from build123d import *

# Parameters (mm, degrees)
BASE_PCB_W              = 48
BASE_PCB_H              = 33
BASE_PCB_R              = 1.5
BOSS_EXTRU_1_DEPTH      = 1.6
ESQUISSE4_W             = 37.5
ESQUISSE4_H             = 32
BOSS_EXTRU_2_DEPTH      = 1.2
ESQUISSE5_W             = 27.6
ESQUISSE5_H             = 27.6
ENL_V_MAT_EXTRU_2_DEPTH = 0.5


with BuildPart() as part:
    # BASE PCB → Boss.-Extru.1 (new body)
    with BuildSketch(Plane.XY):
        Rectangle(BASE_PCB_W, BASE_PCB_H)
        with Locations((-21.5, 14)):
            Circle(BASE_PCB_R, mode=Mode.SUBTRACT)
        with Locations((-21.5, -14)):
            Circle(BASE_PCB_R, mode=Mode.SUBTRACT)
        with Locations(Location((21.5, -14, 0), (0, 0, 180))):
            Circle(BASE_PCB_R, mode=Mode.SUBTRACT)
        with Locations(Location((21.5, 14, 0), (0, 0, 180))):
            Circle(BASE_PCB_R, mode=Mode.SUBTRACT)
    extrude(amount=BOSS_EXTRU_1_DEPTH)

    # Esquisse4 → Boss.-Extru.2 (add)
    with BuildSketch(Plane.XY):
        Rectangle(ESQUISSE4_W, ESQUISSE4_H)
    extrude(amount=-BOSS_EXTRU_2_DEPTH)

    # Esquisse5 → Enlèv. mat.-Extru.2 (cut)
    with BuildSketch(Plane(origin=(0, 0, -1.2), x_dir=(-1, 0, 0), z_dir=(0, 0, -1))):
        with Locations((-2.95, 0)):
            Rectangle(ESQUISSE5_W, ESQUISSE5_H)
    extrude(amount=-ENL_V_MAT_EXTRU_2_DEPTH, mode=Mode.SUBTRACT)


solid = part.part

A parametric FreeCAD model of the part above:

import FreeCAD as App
import Part
import Sketcher
from FreeCAD import Vector
Q = App.Units.Quantity


def add_polygon(sketch, points):
    """Adds a closed chain of lines whose ends are joined by coincident constraints."""
    first, n = sketch.GeometryCount, len(points)
    for a, b in zip(points, points[1:] + points[:1]):
        sketch.addGeometry(Part.LineSegment(App.Vector(*a, 0), App.Vector(*b, 0)), False)
    for i in range(n):
        sketch.addConstraint(Sketcher.Constraint("Coincident", first + i, 2, first + (i + 1) % n, 1))

doc = App.newDocument("Part")
body = doc.addObject("PartDesign::Body", "Body")

# Sketch on XY plane
sketch1 = body.newObject("Sketcher::SketchObject", "Sketch")
sketch1.AttachmentSupport = (doc.getObject("XY_Plane"), [""])
sketch1.MapMode = "FlatFace"
add_polygon(sketch1, [(-24, 16.5), (-24, -16.5), (24, -16.5), (24, 16.5)])  # lines 0-3
sketch1.addGeometry(Part.Circle(Vector(-21.5, -14, 0), Vector(0, 0, 1), 1.5), False)  # 4
sketch1.addGeometry(Part.Circle(Vector(21.5, -14, 0), Vector(0, 0, 1), 1.5), False)  # 5
sketch1.addGeometry(Part.Circle(Vector(-21.5, 14, 0), Vector(0, 0, 1), 1.5), False)  # 6
sketch1.addGeometry(Part.Circle(Vector(21.5, 14, 0), Vector(0, 0, 1), 1.5), False)  # 7
sketch1.addConstraint(Sketcher.Constraint("Vertical", 0))
sketch1.addConstraint(Sketcher.Constraint("Horizontal", 1))
sketch1.addConstraint(Sketcher.Constraint("Vertical", 2))
sketch1.addConstraint(Sketcher.Constraint("Horizontal", 3))
sketch1.addConstraint(Sketcher.Constraint("Equal", 4, 5))
sketch1.addConstraint(Sketcher.Constraint("Equal", 5, 6))
sketch1.addConstraint(Sketcher.Constraint("Equal", 6, 7))
sketch1.addConstraint(Sketcher.Constraint("Symmetric", 5, 3, 6, 3, -1, 1))
sketch1.addConstraint(Sketcher.Constraint("Symmetric", 4, 3, 7, 3, -1, 1))
sketch1.addConstraint(Sketcher.Constraint("Symmetric", 0, 2, 2, 2, -1, 1))
sketch1.addConstraint(Sketcher.Constraint("Symmetric", 4, 3, 5, 3, -2))
sketch1.addConstraint(Sketcher.Constraint("Diameter", 4, Q("3 mm")))
sketch1.addConstraint(Sketcher.Constraint("DistanceX", 1, 1, 1, 2, Q("48 mm")))
sketch1.addConstraint(Sketcher.Constraint("DistanceY", 0, 2, 0, 1, Q("33 mm")))
sketch1.addConstraint(Sketcher.Constraint("DistanceY", 4, 3, -1, 1, Q("14 mm")))
sketch1.addConstraint(Sketcher.Constraint("DistanceX", 4, 3, 5, 3, Q("43 mm")))
pad1 = body.newObject("PartDesign::Pad", "Pad")
pad1.Profile = sketch1
pad1.Length = 1.6

# Sketch on XY plane
sketch2 = body.newObject("Sketcher::SketchObject", "Sketch001")
sketch2.AttachmentSupport = (doc.getObject("XY_Plane"), [""])
sketch2.MapMode = "FlatFace"
add_polygon(sketch2, [(-19, 16), (-19, -16), (19, -16), (19, 16)])  # lines 0-3
sketch2.addConstraint(Sketcher.Constraint("Vertical", 0))
sketch2.addConstraint(Sketcher.Constraint("Horizontal", 1))
sketch2.addConstraint(Sketcher.Constraint("Vertical", 2))
sketch2.addConstraint(Sketcher.Constraint("Horizontal", 3))
sketch2.addConstraint(Sketcher.Constraint("Symmetric", 0, 2, 2, 2, -1, 1))
sketch2.addConstraint(Sketcher.Constraint("DistanceY", 0, 2, 0, 1, Q("32 mm")))
sketch2.addConstraint(Sketcher.Constraint("DistanceX", 1, 1, 1, 2, Q("37.5 mm")))
pad2 = body.newObject("PartDesign::Pad", "Pad001")
pad2.Profile = sketch2
pad2.Length = 1.2
pad2.Reversed = True

# Sketch on XY plane
sketch3 = body.newObject("Sketcher::SketchObject", "Sketch002")
sketch3.AttachmentSupport = (doc.getObject("XY_Plane"), [""])
sketch3.MapMode = "FlatFace"
sketch3.AttachmentOffset = App.Placement(Vector(0, 0, -1.2), App.Rotation())
add_polygon(sketch3, [(17, 14), (17, -14), (-11, -14), (-11, 14)])  # lines 0-3
sketch3.addConstraint(Sketcher.Constraint("Vertical", 0))
sketch3.addConstraint(Sketcher.Constraint("Horizontal", 1))
sketch3.addConstraint(Sketcher.Constraint("Vertical", 2))
sketch3.addConstraint(Sketcher.Constraint("Horizontal", 3))
sketch3.addConstraint(Sketcher.Constraint("Equal", 3, 0))
sketch3.addConstraint(Sketcher.Constraint("DistanceX", 1, 2, 1, 1, Q("27.6 mm")))
sketch3.addConstraint(Sketcher.Constraint("DistanceY", 0, 2, -1, 1, Q("13.8 mm")))
sketch3.addConstraint(Sketcher.Constraint("DistanceX", -1, 1, 0, 2, Q("16.75 mm")))
pocket1 = body.newObject("PartDesign::Pocket", "Pocket")
pocket1.Profile = sketch3
pocket1.Length = 0.5
pocket1.Reversed = True

doc.recompute()
